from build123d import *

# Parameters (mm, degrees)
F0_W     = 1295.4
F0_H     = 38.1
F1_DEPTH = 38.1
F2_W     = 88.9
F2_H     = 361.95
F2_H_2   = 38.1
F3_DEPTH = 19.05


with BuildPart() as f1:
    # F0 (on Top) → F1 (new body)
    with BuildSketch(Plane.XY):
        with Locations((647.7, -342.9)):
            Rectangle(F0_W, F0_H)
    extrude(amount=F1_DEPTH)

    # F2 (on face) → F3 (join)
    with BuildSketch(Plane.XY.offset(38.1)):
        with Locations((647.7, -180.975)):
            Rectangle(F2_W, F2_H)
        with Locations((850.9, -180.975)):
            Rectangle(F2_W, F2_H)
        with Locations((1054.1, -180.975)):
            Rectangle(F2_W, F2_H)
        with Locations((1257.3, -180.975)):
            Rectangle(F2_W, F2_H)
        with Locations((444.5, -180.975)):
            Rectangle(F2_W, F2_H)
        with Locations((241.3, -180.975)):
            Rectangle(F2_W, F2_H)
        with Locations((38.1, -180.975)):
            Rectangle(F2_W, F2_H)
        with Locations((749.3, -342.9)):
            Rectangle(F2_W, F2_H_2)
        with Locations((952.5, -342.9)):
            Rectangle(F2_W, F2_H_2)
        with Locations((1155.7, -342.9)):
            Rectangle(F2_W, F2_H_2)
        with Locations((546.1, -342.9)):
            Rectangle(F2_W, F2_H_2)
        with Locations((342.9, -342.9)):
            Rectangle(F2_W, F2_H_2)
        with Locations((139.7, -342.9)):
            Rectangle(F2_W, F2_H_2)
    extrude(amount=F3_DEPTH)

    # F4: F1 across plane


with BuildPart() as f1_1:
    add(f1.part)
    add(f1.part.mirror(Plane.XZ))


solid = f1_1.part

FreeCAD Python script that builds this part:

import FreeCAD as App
import Part
import Sketcher

V = App.Vector
Q = App.Units.Quantity


def add_polygon(sketch, points):
    """Adds a closed chain of lines whose ends are joined by coincident constraints."""
    first, n = sketch.GeometryCount, len(points)
    for a, b in zip(points, points[1:] + points[:1]):
        sketch.addGeometry(Part.LineSegment(App.Vector(*a, 0), App.Vector(*b, 0)), False)
    for i in range(n):
        sketch.addConstraint(Sketcher.Constraint("Coincident", first + i, 2, first + (i + 1) % n, 1))

doc = App.newDocument("Part")
params = doc.addObject("Spreadsheet::Sheet", "Params")
for row, (alias, value) in enumerate([
    ("sketch1_width", "51 in"),
    ("sketch1_height", "1.5 in"),
    ("pad1_length", "1.5 in"),
    ("sketch2_width", "3.5 in"),
    ("sketch2_height", "1.5 in"),
    ("sketch2_height2", "14.25 in"),
    ("pad2_length", "0.75 in"),
], start=1):
    params.set(f"A{row}", alias)
    params.set(f"B{row}", "=" + value)
    params.setAlias(f"B{row}", alias)

body = doc.addObject("PartDesign::Body", "Body")

sketch1 = body.newObject("Sketcher::SketchObject", "Sketch")
sketch1.AttachmentSupport = (doc.getObject("XY_Plane"), [""])
sketch1.MapMode = "FlatFace"
add_polygon(sketch1, [(0, -324), (0, -362), (1295, -362), (1295, -324)])
sketch1.addConstraint([
    Sketcher.Constraint("Vertical", 0),
    Sketcher.Constraint("Horizontal", 1),
    Sketcher.Constraint("Vertical", 2),
    Sketcher.Constraint("Horizontal", 3),
    Sketcher.Constraint("PointOnObject", 0, 2, -2),
    Sketcher.Constraint("DistanceX", 1, 1, 1, 2, Q("51 in")),
    Sketcher.Constraint("DistanceY", 0, 2, 0, 1, Q("1.5 in")),
    Sketcher.Constraint("DistanceY", 0, 2, -1, 1, Q("14.25 in")),
])
sketch1.setExpression("Constraints[9]", "Params.sketch1_width")
sketch1.setExpression("Constraints[10]", "Params.sketch1_height")
pad1 = body.newObject("PartDesign::Pad", "Pad")
pad1.Profile = sketch1
pad1.setExpression("Length", "Params.pad1_length")

sketch2 = body.newObject("Sketcher::SketchObject", "Sketch001")
sketch2.AttachmentSupport = (doc.getObject("XY_Plane"), [""])
sketch2.MapMode = "FlatFace"
sketch2.AttachmentOffset = App.Placement(V(0, 0, 1.5 * 25.4), App.Rotation())
add_polygon(sketch2, [(603, 0), (603, -362), (692, -362), (692, 0)])
add_polygon(sketch2, [(806, 0), (806, -362), (895, -362), (895, 0)])
add_polygon(sketch2, [(1010, 0), (1010, -362), (1099, -362), (1099, 0)])
add_polygon(sketch2, [(1213, 0), (1213, -362), (1302, -362), (1302, 0)])
add_polygon(sketch2, [(400, 0), (400, -362), (489, -362), (489, 0)])
add_polygon(sketch2, [(197, 0), (197, -362), (286, -362), (286, 0)])
add_polygon(sketch2, [(-6, 0), (-6, -362), (83, -362), (83, 0)])
add_polygon(sketch2, [(705, -324), (705, -362), (794, -362), (794, -324)])
add_polygon(sketch2, [(908, -324), (908, -362), (997, -362), (997, -324)])
add_polygon(sketch2, [(1111, -324), (1111, -362), (1200, -362), (1200, -324)])
add_polygon(sketch2, [(502, -324), (502, -362), (591, -362), (591, -324)])
add_polygon(sketch2, [(298, -324), (298, -362), (387, -362), (387, -324)])
add_polygon(sketch2, [(95, -324), (95, -362), (184, -362), (184, -324)])
sketch2.addConstraint([
    Sketcher.Constraint("Vertical", 0),
    Sketcher.Constraint("Horizontal", 1),
    Sketcher.Constraint("Vertical", 2),
    Sketcher.Constraint("Horizontal", 3),
    Sketcher.Constraint("Vertical", 4),
    Sketcher.Constraint("Horizontal", 5),
    Sketcher.Constraint("Vertical", 6),
    Sketcher.Constraint("Horizontal", 7),
    Sketcher.Constraint("Vertical", 8),
    Sketcher.Constraint("Horizontal", 9),
    Sketcher.Constraint("Vertical", 10),
    Sketcher.Constraint("Horizontal", 11),
    Sketcher.Constraint("Vertical", 12),
    Sketcher.Constraint("Horizontal", 13),
    Sketcher.Constraint("Vertical", 14),
    Sketcher.Constraint("Horizontal", 15),
    Sketcher.Constraint("Vertical", 16),
    Sketcher.Constraint("Horizontal", 17),
    Sketcher.Constraint("Vertical", 18),
    Sketcher.Constraint("Horizontal", 19),
    Sketcher.Constraint("Vertical", 20),
    Sketcher.Constraint("Horizontal", 21),
    Sketcher.Constraint("Vertical", 22),
    Sketcher.Constraint("Horizontal", 23),
    Sketcher.Constraint("Vertical", 24),
    Sketcher.Constraint("Horizontal", 25),
    Sketcher.Constraint("Vertical", 26),
    Sketcher.Constraint("Horizontal", 27),
    Sketcher.Constraint("Vertical", 28),
    Sketcher.Constraint("Horizontal", 29),
    Sketcher.Constraint("Vertical", 30),
    Sketcher.Constraint("Horizontal", 31),
    Sketcher.Constraint("Vertical", 32),
    Sketcher.Constraint("Horizontal", 33),
    Sketcher.Constraint("Vertical", 34),
    Sketcher.Constraint("Horizontal", 35),
    Sketcher.Constraint("Vertical", 36),
    Sketcher.Constraint("Horizontal", 37),
    Sketcher.Constraint("Vertical", 38),
    Sketcher.Constraint("Horizontal", 39),
    Sketcher.Constraint("Vertical", 40),
    Sketcher.Constraint("Horizontal", 41),
    Sketcher.Constraint("Vertical", 42),
    Sketcher.Constraint("Horizontal", 43),
    Sketcher.Constraint("Vertical", 44),
    Sketcher.Constraint("Horizontal", 45),
    Sketcher.Constraint("Vertical", 46),
    Sketcher.Constraint("Horizontal", 47),
    Sketcher.Constraint("Vertical", 48),
    Sketcher.Constraint("Horizontal", 49),
    Sketcher.Constraint("Vertical", 50),
    Sketcher.Constraint("Horizontal", 51),
    Sketcher.Constraint("PointOnObject", 2, 2, -1),
    Sketcher.Constraint("PointOnObject", 6, 2, -1),
    Sketcher.Constraint("PointOnObject", 10, 2, -1),
    Sketcher.Constraint("PointOnObject", 14, 2, -1),
    Sketcher.Constraint("PointOnObject", 18, 2, -1),
    Sketcher.Constraint("PointOnObject", 22, 2, -1),
    Sketcher.Constraint("PointOnObject", 26, 2, -1),
    Sketcher.Constraint("Horizontal", 1, 2, 4, 2),
    Sketcher.Constraint("Horizontal", 5, 2, 8, 2),
    Sketcher.Constraint("Horizontal", 9, 2, 12, 2),
    Sketcher.Constraint("Horizontal", 13, 2, 16, 2),
    Sketcher.Constraint("Horizontal", 17, 2, 20, 2),
    Sketcher.Constraint("Horizontal", 21, 2, 24, 2),
    Sketcher.Constraint("Horizontal", 25, 2, 28, 2),
    Sketcher.Constraint("Horizontal", 29, 2, 32, 2),
    Sketcher.Constraint("Horizontal", 31, 2, 34, 2),
    Sketcher.Constraint("Horizontal", 33, 2, 36, 2),
    Sketcher.Constraint("Horizontal", 35, 2, 38, 2),
    Sketcher.Constraint("Horizontal", 37, 2, 40, 2),
    Sketcher.Constraint("Horizontal", 39, 2, 42, 2),
    Sketcher.Constraint("Horizontal", 41, 2, 44, 2),
    Sketcher.Constraint("Horizontal", 43, 2, 46, 2),
    Sketcher.Constraint("Horizontal", 45, 2, 48, 2),
    Sketcher.Constraint("Horizontal", 47, 2, 50, 2),
    Sketcher.Constraint("Equal", 3, 5),
    Sketcher.Constraint("Equal", 7, 9),
    Sketcher.Constraint("Equal", 11, 13),
    Sketcher.Constraint("Equal", 15, 17),
    Sketcher.Constraint("Equal", 19, 21),
    Sketcher.Constraint("Equal", 23, 25),
    Sketcher.Constraint("Equal", 27, 29),
    Sketcher.Constraint("Equal", 31, 33),
    Sketcher.Constraint("Equal", 35, 37),
    Sketcher.Constraint("Equal", 39, 41),
    Sketcher.Constraint("Equal", 43, 45),
    Sketcher.Constraint("Equal", 47, 49),
    Sketcher.Constraint("DistanceX", 1, 1, 1, 2, Q("3.5 in")),
    Sketcher.Constraint("DistanceY", 28, 2, 28, 1, Q("1.5 in")),
    Sketcher.Constraint("DistanceX", 0, 2, 4, 2, Q("8 in")),
    Sketcher.Constraint("DistanceX", 4, 2, 8, 2, Q("8 in")),
    Sketcher.Constraint("DistanceX", 8, 2, 12, 2, Q("8 in")),
    Sketcher.Constraint("DistanceX", 16, 2, 0, 2, Q("8 in")),
    Sketcher.Constraint("DistanceX", 20, 2, 16, 2, Q("8 in")),
    Sketcher.Constraint("DistanceX", 24, 2, 20, 2, Q("8 in")),
    Sketcher.Constraint("DistanceX", 0, 2, 28, 2, Q("4 in")),
    Sketcher.Constraint("DistanceX", 4, 2, 32, 2, Q("4 in")),
    Sketcher.Constraint("DistanceX", 36, 2, 12, 2, Q("4 in")),
    Sketcher.Constraint("DistanceX", 16, 2, 40, 2, Q("4 in")),
    Sketcher.Constraint("DistanceX", 20, 2, 44, 2, Q("4 in")),
    Sketcher.Constraint("DistanceX", 48, 2, 20, 2, Q("4 in")),
    Sketcher.Constraint("DistanceY", 0, 2, 0, 1, Q("14.25 in")),
    Sketcher.Constraint("DistanceX", -1, 1, 0, 2, Q("23.75 in")),
])
sketch2.setExpression("Constraints[140]", "Params.sketch2_width")
sketch2.setExpression("Constraints[141]", "Params.sketch2_height")
sketch2.setExpression("Constraints[154]", "Params.sketch2_height2")
pad2 = body.newObject("PartDesign::Pad", "Pad001")
pad2.Profile = sketch2
pad2.setExpression("Length", "Params.pad2_length")
body2 = doc.addObject("PartDesign::Body", "Body001")
doc.recompute()

body2.BaseFeature = body
doc.recompute()

mirroring = doc.addObject("Part::Mirroring", "Mirroring")
mirroring.Source = body
mirroring.Base = V(0, 0, 0)
mirroring.Normal = V(0, -1, 0)
body3 = doc.addObject("PartDesign::Body", "Body002")
body3.BaseFeature = mirroring
boolean = body2.newObject("PartDesign::Boolean", "Boolean")
boolean.Type = "Fuse"
boolean.addObjects([body3])
doc.recompute()
mirroring.Visibility = False

doc.recompute()
